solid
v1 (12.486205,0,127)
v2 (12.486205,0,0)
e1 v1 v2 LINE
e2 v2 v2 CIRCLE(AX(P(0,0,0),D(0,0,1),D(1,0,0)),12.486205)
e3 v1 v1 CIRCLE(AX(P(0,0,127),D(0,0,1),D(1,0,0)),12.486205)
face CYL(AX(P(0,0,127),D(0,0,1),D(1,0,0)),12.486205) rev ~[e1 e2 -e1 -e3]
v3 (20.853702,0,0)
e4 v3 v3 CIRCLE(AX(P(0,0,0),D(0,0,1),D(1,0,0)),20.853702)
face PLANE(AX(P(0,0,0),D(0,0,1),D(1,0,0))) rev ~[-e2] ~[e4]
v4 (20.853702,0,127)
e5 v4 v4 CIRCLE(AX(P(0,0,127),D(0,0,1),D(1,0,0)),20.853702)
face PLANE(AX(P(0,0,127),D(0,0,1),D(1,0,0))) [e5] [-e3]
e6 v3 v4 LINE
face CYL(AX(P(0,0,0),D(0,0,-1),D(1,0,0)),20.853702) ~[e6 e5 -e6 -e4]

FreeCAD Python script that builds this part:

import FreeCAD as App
import Part
import Sketcher

V = App.Vector
Q = App.Units.Quantity

doc = App.newDocument("Part")
body = doc.addObject("PartDesign::Body", "Body")

sketch1 = body.newObject("Sketcher::SketchObject", "Sketch")
sketch1.AttachmentSupport = (doc.getObject("XY_Plane"), [""])
sketch1.MapMode = "FlatFace"
sketch1.addGeometry(Part.Circle(V(0, 0, 0), V(0, 0, 1), 21), False)
sketch1.addConstraint([
    Sketcher.Constraint("Coincident", 0, 3, -1, 1),
    Sketcher.Constraint("Diameter", 0, 41.707404),
])
pad1 = body.newObject("PartDesign::Pad", "Pad")
pad1.Profile = sketch1
pad1.Length = Q("5 in")

sketch2 = body.newObject("Sketcher::SketchObject", "Sketch001")
sketch2.AttachmentSupport = (doc.getObject("XY_Plane"), [""])
sketch2.MapMode = "FlatFace"
sketch2.addGeometry(Part.Circle(V(0, 0, 0), V(0, 0, 1), 9), False)
sketch2.addConstraint([
    Sketcher.Constraint("Coincident", 0, 3, -1, 1),
    Sketcher.Constraint("Diameter", 0, 18.754984),
])
pocket1 = body.newObject("PartDesign::Pocket", "Pocket")
pocket1.Profile = sketch2
pocket1.Length = Q("5 in")

sketch3 = body.newObject("Sketcher::SketchObject", "Sketch002")
sketch3.AttachmentSupport = (doc.getObject("XY_Plane"), [""])
sketch3.MapMode = "FlatFace"
sketch3.AttachmentOffset = App.Placement(V(0, 0, 5 * 25.4), App.Rotation())
sketch3.addGeometry(Part.Circle(V(0, 0, 0), V(0, 0, 1), 12), False)
sketch3.addConstraint([
    Sketcher.Constraint("Coincident", 0, 3, -1, 1),
    Sketcher.Constraint("Diameter", 0, 24.97241),
])
pocket2 = body.newObject("PartDesign::Pocket", "Pocket001")
pocket2.Profile = sketch3
pocket2.Length = Q("5 in")

doc.recompute()
